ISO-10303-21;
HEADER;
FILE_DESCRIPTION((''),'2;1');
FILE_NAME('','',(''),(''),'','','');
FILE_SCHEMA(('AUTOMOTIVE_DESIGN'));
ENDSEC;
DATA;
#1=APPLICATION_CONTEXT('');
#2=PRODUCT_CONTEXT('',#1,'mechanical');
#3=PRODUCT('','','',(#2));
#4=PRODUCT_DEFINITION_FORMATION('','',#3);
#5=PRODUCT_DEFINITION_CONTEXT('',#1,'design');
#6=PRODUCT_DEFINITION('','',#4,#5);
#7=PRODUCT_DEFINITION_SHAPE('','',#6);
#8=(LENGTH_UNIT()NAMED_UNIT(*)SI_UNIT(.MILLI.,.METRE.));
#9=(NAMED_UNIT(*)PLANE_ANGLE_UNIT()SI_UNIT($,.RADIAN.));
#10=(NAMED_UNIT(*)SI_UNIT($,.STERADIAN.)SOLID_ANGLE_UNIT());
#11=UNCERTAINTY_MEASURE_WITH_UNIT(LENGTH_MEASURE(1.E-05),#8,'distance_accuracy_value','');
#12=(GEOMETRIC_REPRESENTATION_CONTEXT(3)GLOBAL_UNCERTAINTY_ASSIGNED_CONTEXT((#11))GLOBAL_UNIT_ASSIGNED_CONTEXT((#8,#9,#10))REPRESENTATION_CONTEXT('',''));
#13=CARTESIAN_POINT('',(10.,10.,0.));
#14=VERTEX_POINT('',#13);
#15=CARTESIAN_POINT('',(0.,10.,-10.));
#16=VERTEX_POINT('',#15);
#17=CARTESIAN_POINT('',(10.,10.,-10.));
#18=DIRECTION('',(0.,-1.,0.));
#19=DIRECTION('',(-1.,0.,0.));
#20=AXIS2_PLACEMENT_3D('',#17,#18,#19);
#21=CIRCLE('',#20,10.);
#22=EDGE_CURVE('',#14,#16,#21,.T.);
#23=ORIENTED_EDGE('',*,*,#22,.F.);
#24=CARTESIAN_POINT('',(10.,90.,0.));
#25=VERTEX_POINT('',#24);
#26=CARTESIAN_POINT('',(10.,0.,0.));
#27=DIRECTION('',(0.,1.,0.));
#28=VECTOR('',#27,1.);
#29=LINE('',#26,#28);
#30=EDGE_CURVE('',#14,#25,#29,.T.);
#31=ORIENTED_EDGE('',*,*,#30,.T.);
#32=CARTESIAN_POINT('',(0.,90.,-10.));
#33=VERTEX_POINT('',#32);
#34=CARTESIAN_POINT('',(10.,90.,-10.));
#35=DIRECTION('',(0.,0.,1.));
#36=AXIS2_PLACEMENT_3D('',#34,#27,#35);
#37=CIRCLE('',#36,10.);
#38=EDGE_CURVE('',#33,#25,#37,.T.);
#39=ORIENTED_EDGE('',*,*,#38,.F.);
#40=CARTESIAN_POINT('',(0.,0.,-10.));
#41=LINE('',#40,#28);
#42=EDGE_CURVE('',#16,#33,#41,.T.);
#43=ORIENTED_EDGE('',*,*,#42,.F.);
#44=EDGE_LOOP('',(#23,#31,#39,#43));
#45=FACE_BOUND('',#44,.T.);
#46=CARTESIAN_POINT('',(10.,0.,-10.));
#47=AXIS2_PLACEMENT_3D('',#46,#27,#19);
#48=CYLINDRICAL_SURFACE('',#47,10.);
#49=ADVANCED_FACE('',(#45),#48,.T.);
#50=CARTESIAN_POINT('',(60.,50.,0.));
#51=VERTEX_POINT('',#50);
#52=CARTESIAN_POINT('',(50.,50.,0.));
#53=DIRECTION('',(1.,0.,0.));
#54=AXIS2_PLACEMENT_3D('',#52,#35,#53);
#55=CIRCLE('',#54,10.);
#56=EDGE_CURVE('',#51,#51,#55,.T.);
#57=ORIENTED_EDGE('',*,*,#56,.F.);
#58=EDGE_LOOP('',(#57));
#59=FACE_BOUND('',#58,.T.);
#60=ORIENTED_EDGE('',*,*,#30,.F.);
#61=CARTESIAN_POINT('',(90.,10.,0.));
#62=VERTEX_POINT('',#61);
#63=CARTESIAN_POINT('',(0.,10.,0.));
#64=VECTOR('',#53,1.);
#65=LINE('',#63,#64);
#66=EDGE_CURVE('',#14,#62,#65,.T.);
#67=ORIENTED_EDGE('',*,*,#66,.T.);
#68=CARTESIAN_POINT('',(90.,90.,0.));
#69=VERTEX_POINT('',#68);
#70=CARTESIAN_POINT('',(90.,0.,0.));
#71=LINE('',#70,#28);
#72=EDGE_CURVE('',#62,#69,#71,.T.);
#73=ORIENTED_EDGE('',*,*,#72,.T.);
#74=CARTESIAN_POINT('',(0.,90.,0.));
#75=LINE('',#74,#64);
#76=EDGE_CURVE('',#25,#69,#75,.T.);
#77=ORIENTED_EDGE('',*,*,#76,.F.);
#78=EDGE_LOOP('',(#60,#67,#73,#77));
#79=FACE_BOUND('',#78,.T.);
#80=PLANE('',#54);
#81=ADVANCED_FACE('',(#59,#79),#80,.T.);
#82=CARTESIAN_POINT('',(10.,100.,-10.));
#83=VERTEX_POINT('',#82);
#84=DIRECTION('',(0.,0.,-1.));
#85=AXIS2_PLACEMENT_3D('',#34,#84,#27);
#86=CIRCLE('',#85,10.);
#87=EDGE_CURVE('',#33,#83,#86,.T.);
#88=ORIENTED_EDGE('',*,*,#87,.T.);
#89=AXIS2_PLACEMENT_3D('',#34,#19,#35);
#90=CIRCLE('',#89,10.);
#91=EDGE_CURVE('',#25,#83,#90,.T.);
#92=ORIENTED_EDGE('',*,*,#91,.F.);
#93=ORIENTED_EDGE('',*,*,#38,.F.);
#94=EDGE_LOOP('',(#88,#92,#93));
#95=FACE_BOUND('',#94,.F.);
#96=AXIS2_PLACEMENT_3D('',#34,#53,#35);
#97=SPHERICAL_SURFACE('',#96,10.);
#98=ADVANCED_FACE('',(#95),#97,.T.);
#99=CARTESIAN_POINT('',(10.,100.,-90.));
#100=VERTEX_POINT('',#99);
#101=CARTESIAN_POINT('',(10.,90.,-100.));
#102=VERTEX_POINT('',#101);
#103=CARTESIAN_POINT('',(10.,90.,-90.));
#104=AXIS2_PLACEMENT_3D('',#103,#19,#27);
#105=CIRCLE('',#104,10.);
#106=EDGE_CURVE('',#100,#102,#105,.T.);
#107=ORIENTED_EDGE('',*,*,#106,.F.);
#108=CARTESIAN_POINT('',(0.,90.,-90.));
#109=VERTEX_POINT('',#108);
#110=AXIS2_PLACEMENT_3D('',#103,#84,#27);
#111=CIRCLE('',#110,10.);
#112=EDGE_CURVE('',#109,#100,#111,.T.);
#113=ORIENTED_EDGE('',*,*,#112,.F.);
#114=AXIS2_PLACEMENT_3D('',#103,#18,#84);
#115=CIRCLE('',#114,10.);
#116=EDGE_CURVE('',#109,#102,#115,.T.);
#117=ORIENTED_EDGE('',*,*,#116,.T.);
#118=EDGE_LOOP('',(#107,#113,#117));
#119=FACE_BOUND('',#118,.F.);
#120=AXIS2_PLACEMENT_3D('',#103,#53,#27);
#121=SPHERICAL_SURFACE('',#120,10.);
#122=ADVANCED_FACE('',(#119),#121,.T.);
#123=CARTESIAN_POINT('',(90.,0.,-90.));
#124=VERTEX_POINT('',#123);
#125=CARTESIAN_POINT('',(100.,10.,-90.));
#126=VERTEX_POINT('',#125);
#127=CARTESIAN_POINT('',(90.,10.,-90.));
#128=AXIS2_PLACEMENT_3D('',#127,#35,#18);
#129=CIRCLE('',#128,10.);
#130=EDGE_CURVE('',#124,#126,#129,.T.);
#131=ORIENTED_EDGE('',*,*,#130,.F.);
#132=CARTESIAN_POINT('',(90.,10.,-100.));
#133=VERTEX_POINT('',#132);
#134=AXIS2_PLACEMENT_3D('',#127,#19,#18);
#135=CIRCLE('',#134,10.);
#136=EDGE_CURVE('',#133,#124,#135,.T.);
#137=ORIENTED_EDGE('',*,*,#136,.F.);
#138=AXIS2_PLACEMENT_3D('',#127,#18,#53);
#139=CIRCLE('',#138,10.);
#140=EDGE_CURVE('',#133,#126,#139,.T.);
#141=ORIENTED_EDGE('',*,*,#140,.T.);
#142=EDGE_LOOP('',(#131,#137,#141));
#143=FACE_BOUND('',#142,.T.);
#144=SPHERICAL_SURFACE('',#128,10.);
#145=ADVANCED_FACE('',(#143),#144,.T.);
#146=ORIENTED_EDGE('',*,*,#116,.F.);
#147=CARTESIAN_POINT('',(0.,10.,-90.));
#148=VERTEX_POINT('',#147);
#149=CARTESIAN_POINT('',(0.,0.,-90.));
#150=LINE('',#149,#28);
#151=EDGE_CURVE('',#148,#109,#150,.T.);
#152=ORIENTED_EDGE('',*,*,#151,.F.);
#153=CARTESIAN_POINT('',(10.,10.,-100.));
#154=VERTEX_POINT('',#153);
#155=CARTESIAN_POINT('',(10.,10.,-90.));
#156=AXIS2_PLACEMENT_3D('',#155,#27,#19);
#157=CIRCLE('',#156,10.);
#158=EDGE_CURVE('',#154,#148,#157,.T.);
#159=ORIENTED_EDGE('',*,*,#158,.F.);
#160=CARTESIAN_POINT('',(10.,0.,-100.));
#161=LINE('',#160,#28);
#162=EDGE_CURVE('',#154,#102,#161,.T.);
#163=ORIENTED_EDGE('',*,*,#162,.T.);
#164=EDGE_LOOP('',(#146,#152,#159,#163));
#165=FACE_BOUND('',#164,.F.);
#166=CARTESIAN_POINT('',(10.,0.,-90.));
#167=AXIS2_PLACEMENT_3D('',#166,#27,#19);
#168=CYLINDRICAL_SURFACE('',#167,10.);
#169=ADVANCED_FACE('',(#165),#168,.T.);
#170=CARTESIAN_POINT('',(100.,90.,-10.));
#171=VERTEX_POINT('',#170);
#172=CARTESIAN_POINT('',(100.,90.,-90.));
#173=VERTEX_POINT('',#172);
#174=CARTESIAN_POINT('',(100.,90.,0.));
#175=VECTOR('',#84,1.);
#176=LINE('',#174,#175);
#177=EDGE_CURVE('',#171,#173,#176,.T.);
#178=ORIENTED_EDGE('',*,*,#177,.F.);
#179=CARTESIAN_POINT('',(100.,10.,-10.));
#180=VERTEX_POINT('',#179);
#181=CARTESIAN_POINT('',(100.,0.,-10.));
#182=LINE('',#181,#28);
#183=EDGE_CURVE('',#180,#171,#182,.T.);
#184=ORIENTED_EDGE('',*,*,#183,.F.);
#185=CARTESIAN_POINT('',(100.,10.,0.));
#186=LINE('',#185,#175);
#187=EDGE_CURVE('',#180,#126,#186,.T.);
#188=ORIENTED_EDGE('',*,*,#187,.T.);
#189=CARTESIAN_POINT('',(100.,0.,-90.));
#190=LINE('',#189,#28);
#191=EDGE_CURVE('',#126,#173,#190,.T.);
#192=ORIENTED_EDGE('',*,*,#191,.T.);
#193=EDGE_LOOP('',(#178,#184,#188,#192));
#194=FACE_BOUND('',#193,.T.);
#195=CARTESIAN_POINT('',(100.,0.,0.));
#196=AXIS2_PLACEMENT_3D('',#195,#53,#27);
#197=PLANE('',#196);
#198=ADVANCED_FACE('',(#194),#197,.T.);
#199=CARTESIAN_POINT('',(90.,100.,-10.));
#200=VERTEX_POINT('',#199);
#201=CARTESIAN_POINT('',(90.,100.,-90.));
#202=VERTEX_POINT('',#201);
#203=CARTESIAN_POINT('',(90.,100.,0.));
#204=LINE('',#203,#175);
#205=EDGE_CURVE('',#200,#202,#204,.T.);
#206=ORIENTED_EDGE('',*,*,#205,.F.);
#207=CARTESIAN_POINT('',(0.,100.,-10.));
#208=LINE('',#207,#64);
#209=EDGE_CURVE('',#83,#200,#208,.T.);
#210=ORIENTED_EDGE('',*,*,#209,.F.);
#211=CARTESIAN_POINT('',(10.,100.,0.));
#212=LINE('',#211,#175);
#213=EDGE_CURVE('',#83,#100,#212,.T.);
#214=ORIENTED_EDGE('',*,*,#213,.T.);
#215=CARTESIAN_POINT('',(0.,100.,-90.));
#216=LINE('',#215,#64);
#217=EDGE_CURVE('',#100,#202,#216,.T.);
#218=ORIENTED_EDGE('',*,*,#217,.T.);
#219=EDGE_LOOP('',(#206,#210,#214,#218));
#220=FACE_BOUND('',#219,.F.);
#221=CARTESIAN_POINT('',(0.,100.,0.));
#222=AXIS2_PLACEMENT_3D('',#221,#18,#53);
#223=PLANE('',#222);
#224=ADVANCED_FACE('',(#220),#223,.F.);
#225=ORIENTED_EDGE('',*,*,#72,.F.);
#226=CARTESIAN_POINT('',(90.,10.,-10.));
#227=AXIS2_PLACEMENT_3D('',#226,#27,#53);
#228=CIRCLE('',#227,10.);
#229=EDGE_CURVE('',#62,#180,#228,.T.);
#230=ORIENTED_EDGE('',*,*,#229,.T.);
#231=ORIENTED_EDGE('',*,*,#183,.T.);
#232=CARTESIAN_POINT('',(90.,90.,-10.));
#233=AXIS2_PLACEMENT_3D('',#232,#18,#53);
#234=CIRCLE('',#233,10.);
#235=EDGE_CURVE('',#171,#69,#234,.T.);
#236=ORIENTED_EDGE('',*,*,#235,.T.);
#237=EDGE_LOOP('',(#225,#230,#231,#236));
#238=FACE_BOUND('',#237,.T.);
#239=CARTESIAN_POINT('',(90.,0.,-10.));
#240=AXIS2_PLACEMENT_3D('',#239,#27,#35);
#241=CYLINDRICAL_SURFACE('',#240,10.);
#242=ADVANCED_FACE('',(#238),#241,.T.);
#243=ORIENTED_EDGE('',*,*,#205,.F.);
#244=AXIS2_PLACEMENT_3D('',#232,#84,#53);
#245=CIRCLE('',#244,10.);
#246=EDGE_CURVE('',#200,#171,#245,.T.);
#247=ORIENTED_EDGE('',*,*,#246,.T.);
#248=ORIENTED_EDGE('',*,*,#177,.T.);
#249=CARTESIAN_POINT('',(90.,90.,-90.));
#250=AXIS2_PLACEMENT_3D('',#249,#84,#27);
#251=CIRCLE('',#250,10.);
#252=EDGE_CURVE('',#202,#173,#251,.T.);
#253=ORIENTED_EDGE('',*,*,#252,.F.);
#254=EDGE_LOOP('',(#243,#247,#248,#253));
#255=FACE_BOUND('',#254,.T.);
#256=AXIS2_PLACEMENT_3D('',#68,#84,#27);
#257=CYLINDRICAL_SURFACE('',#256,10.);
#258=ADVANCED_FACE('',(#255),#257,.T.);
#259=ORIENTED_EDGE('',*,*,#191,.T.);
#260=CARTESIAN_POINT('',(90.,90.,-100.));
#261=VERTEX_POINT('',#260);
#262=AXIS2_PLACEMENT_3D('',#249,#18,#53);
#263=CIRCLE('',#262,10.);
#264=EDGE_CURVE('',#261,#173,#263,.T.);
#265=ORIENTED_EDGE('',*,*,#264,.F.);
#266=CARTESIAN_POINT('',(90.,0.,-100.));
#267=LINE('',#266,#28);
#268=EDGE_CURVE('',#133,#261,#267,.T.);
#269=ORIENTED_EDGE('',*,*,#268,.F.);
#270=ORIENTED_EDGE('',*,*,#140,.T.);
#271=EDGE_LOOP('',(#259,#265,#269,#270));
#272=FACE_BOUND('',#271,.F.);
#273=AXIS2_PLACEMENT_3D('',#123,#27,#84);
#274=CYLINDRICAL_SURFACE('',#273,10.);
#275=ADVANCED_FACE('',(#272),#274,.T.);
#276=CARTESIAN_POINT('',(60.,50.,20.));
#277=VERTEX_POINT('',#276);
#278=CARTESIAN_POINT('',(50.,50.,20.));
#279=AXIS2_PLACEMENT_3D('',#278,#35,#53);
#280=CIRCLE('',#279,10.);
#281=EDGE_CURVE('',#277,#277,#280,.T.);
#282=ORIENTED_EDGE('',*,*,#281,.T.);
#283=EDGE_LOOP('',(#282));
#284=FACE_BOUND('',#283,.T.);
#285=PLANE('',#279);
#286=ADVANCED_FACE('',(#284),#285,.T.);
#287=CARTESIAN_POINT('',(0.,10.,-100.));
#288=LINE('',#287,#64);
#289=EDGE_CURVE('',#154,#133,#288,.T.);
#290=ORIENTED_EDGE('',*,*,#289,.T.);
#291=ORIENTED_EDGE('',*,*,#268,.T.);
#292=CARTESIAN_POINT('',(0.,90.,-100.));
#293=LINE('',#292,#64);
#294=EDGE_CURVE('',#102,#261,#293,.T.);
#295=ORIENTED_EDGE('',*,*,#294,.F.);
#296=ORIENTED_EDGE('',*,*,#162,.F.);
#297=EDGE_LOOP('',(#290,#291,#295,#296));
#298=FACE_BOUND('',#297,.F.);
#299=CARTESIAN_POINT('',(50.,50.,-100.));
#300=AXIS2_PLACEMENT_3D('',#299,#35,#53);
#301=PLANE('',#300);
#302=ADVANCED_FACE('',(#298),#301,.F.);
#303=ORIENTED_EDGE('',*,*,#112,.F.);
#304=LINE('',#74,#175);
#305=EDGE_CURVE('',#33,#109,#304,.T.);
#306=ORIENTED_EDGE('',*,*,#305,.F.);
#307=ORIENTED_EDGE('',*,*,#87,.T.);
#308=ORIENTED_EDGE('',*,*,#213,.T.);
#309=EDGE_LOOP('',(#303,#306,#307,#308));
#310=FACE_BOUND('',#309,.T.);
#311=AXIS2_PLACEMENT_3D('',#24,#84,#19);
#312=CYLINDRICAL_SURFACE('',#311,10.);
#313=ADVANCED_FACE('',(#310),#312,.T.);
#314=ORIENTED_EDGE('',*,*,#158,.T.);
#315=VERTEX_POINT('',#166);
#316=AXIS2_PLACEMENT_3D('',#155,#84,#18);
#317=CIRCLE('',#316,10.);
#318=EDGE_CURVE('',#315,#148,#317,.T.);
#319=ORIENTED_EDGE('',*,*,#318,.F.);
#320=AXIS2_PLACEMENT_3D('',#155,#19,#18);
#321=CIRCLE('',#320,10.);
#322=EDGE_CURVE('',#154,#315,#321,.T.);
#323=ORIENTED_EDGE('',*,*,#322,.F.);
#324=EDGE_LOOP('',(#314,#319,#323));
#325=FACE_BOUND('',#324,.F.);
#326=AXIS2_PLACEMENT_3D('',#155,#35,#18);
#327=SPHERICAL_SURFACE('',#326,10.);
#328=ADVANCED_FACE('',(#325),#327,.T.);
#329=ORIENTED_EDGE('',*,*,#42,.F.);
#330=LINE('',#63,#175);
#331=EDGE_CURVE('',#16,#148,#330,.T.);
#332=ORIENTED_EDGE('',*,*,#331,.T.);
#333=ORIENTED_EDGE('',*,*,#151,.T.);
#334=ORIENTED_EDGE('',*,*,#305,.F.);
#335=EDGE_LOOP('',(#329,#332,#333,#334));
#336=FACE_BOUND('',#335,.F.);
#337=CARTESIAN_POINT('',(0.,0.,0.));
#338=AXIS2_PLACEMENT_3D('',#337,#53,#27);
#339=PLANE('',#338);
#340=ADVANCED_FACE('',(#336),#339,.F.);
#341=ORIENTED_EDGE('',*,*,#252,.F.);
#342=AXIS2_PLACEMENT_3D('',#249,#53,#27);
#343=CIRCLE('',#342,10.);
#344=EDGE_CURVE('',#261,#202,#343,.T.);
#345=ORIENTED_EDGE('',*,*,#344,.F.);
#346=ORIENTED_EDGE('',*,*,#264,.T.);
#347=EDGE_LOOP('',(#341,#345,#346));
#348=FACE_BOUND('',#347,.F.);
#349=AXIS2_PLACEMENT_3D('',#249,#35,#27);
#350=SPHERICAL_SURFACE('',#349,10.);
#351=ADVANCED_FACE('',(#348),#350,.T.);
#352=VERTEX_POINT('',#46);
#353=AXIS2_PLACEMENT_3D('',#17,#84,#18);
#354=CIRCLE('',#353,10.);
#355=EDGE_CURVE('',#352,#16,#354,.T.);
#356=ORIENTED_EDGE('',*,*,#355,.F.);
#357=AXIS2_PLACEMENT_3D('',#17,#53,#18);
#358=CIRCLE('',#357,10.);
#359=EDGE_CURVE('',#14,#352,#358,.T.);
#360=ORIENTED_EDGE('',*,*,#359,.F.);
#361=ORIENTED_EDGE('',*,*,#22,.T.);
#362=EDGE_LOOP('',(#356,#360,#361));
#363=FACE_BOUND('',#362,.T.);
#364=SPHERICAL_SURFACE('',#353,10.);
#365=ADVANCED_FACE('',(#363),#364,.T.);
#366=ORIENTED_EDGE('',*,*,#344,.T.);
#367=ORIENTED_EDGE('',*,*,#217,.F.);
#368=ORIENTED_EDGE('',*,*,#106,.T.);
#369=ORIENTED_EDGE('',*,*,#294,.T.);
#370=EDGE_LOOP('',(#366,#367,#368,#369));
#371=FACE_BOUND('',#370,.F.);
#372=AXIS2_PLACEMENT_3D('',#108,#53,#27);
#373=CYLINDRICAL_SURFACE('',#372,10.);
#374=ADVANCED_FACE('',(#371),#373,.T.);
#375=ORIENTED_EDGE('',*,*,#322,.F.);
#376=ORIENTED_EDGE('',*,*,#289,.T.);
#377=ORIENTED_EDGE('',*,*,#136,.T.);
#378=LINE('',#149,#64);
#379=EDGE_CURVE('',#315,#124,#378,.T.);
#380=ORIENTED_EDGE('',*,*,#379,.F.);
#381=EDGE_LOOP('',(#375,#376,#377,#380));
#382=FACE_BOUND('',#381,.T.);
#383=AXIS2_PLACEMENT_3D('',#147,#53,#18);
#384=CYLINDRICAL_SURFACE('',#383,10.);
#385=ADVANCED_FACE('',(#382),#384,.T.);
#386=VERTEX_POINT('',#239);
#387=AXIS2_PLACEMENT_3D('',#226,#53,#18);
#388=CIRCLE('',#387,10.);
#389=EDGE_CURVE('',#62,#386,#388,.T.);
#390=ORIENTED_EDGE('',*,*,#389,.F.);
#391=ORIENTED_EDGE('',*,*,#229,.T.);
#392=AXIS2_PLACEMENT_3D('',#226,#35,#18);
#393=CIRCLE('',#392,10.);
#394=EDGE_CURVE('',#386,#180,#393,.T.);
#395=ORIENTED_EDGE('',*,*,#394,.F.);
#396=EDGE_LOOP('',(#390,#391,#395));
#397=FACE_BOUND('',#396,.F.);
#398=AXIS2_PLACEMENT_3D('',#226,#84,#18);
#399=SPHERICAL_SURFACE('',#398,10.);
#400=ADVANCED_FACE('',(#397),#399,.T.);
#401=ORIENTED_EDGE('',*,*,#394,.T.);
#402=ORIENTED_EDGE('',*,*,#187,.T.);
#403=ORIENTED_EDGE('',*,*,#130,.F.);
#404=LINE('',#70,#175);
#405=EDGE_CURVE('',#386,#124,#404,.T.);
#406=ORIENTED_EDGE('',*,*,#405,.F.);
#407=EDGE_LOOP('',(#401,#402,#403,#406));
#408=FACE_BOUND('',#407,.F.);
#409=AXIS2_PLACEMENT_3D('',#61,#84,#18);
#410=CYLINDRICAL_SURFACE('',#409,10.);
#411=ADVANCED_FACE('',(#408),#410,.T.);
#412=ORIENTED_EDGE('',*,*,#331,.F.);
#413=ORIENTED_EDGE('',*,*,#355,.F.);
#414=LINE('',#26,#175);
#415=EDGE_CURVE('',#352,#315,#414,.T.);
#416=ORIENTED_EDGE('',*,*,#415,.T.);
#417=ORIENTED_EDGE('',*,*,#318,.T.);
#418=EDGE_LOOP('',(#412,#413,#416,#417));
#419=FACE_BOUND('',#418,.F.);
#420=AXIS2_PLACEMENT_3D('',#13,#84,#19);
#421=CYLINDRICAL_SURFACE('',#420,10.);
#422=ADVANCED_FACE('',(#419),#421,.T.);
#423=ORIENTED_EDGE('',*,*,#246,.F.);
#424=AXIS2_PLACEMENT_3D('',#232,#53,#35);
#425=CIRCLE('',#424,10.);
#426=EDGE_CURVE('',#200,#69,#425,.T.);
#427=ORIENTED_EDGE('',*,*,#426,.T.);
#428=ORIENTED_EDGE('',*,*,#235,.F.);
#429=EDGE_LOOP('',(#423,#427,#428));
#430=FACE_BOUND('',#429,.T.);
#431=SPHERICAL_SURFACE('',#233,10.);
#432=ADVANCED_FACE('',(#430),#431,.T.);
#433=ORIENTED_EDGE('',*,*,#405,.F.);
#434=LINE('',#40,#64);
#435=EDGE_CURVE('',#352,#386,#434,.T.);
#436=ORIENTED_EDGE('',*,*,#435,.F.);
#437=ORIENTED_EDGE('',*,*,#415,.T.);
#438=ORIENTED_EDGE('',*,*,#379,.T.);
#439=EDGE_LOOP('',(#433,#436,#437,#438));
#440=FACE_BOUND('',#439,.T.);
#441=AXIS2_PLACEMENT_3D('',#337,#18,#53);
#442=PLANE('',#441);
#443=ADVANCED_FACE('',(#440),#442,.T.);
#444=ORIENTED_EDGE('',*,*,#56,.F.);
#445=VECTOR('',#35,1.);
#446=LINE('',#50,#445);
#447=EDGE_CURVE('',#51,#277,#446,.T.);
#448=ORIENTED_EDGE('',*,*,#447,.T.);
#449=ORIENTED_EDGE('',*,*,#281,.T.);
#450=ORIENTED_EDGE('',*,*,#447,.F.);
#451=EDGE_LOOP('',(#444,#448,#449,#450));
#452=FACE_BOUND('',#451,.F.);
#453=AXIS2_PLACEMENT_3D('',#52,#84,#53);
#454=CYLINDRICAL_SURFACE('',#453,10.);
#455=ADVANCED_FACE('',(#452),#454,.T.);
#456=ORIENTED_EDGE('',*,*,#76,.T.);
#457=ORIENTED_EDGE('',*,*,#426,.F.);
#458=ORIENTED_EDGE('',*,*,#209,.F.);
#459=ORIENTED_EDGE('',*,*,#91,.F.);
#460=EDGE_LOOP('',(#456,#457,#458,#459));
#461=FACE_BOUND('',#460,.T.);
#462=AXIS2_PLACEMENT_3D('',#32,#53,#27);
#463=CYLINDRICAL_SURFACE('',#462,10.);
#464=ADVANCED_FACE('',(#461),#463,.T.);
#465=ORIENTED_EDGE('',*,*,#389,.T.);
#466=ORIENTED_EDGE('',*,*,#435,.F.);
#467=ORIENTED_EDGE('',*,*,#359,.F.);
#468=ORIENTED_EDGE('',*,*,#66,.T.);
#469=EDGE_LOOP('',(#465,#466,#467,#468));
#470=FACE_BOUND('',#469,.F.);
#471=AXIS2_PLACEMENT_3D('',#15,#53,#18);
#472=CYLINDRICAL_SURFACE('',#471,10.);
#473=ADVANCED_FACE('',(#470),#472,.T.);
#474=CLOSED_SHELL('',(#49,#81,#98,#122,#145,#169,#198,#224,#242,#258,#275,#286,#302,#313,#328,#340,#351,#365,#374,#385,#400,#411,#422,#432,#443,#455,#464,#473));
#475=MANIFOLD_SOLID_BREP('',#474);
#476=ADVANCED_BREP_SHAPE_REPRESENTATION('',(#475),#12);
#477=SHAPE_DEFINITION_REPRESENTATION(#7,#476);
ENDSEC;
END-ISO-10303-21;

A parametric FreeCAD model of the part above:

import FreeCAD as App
import Part
import Sketcher

V = App.Vector
Q = App.Units.Quantity


def edges_at(feature, points):
    """Names of the edges that pass closest to the given points."""
    edges = feature.Shape.Edges
    near = lambda p: min(range(len(edges)), key=lambda i: edges[i].distToShape(Part.Vertex(*p))[0])
    return sorted({f"Edge{near(p) + 1}" for p in points})


def add_polygon(sketch, points):
    """Adds a closed chain of lines whose ends are joined by coincident constraints."""
    first, n = sketch.GeometryCount, len(points)
    for a, b in zip(points, points[1:] + points[:1]):
        sketch.addGeometry(Part.LineSegment(App.Vector(*a, 0), App.Vector(*b, 0)), False)
    for i in range(n):
        sketch.addConstraint(Sketcher.Constraint("Coincident", first + i, 2, first + (i + 1) % n, 1))

doc = App.newDocument("Part")
body = doc.addObject("PartDesign::Body", "Body")

# Sketch on XY plane
sketch1 = body.newObject("Sketcher::SketchObject", "Sketch")
sketch1.AttachmentSupport = (doc.getObject("XY_Plane"), [""])
sketch1.MapMode = "FlatFace"
add_polygon(sketch1, [(0, 100), (0, 0), (100, 0), (100, 100)])  # lines 0-3
sketch1.addConstraint(Sketcher.Constraint("Vertical", 0))
sketch1.addConstraint(Sketcher.Constraint("Horizontal", 1))
sketch1.addConstraint(Sketcher.Constraint("Vertical", 2))
sketch1.addConstraint(Sketcher.Constraint("Horizontal", 3))
sketch1.addConstraint(Sketcher.Constraint("Coincident", 0, 2, -1, 1))
sketch1.addConstraint(Sketcher.Constraint("Equal", 3, 0))
sketch1.addConstraint(Sketcher.Constraint("DistanceX", 1, 1, 1, 2, Q("100 mm")))
pad1 = body.newObject("PartDesign::Pad", "Pad")
pad1.Profile = sketch1
pad1.Length = 100
pad1.Reversed = True

# Sketch on XY plane
sketch2 = body.newObject("Sketcher::SketchObject", "Sketch001")
sketch2.AttachmentSupport = (doc.getObject("XY_Plane"), [""])
sketch2.MapMode = "FlatFace"
sketch2.addGeometry(Part.Circle(V(50, 50, 0), V(0, 0, 1), 10), False)
sketch2.addConstraint(Sketcher.Constraint("Diameter", 0, Q("20 mm")))
sketch2.addConstraint(Sketcher.Constraint("DistanceX", -1, 1, 0, 3, Q("50 mm")))
sketch2.addConstraint(Sketcher.Constraint("DistanceY", -1, 1, 0, 3, Q("50 mm")))
pad2 = body.newObject("PartDesign::Pad", "Pad001")
pad2.Profile = sketch2
pad2.Length = 20
doc.recompute()

fillet = body.newObject("PartDesign::Fillet", "Fillet")
fillet.Base = (pad2, edges_at(pad2, [
    (0, 0, -50),
    (100, 0, -50),
    (50, 0, 0),
    (50, 0, -100),
    (100, 50, 0),
    (100, 100, -50),
    (50, 100, 0),
    (0, 50, 0),
    (50, 100, -100),
    (0, 100, -50),
    (0, 50, -100),
    (100, 50, -100),
]))
fillet.Radius = 10

doc.recompute()
